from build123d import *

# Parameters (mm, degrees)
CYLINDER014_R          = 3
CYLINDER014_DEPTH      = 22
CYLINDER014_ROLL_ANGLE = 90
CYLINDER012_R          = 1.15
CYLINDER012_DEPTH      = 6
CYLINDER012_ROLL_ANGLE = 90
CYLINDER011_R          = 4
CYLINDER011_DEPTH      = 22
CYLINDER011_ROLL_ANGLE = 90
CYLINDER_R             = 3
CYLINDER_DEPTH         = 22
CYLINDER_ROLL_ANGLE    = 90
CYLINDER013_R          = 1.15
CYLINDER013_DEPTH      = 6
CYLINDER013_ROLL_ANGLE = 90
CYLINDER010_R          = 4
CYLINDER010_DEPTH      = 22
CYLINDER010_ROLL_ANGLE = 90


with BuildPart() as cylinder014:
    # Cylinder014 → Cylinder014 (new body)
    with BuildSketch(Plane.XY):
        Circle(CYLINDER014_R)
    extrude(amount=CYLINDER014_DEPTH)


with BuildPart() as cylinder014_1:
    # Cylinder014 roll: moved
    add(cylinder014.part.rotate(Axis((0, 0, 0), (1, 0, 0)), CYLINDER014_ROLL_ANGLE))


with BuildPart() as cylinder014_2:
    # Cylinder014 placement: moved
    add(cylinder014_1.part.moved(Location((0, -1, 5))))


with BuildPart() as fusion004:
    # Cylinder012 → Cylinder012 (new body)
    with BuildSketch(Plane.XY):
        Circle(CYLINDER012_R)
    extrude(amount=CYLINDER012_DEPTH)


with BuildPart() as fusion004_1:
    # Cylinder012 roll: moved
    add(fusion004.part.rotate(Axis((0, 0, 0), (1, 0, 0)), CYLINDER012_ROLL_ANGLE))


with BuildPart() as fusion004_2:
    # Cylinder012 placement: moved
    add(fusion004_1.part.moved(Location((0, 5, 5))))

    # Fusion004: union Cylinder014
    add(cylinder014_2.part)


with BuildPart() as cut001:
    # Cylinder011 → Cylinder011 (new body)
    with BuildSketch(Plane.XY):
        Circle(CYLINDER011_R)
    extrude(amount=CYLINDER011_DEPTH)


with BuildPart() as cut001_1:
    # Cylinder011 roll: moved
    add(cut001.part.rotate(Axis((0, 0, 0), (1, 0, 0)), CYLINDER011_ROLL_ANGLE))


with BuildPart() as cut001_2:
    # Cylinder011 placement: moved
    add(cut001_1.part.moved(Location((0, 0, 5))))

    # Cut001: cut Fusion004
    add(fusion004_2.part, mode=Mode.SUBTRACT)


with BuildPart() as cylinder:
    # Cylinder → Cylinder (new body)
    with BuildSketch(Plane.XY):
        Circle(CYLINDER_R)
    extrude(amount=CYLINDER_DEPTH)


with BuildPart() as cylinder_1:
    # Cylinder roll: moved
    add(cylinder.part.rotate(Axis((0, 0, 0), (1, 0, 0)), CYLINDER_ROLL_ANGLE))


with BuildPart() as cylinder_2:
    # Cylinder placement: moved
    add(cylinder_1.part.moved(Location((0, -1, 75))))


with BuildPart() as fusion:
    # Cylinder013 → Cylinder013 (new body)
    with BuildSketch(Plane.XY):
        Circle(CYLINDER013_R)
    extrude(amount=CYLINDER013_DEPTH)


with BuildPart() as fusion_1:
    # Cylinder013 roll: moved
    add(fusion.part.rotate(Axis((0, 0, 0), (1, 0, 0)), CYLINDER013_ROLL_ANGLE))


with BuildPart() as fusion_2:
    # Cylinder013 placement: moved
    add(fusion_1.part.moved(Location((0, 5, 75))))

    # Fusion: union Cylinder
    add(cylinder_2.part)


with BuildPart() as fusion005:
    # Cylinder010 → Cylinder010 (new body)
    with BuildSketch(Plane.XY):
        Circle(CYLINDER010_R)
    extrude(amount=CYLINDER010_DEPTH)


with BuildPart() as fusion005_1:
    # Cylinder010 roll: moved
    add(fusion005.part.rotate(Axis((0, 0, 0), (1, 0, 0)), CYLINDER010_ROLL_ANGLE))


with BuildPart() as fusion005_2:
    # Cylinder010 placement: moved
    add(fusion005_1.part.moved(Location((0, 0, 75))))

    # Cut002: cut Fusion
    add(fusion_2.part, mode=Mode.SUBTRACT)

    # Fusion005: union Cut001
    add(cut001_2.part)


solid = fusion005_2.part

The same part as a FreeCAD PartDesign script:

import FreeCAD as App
import Part
import Sketcher
from FreeCAD import Vector
Q = App.Units.Quantity

doc = App.newDocument("Part")
body = doc.addObject("PartDesign::Body", "Body")

# Sketch on XY plane
sketch1 = body.newObject("Sketcher::SketchObject", "Sketch")
sketch1.AttachmentSupport = (doc.getObject("XY_Plane"), [""])
sketch1.MapMode = "FlatFace"
sketch1.addGeometry(Part.Circle(Vector(0, 0, 0), Vector(0, 0, 1), 3), False)
sketch1.addConstraint(Sketcher.Constraint("Coincident", 0, 3, -1, 1))
sketch1.addConstraint(Sketcher.Constraint("Diameter", 0, Q("6 mm")))
pad1 = body.newObject("PartDesign::Pad", "Pad")
pad1.Profile = sketch1
pad1.Length = 22
body2 = doc.addObject("PartDesign::Body", "Body001")
doc.recompute()

body.Placement = App.Placement(Vector(0, 0, 0), App.Rotation(Vector(1, 0, 0), 90))
boolean = body2.newObject("PartDesign::Boolean", "Boolean")
boolean.Type = "Fuse"
boolean.addObjects([body])
body3 = doc.addObject("PartDesign::Body", "Body002")
doc.recompute()

body2.Placement = App.Placement(Vector(0, -1, 5), App.Rotation(Vector(0, 0, 1), 0))
boolean2 = body3.newObject("PartDesign::Boolean", "Boolean001")
boolean2.Type = "Fuse"
boolean2.addObjects([body2])
body4 = doc.addObject("PartDesign::Body", "Body003")

# Sketch on XY plane
sketch2 = body4.newObject("Sketcher::SketchObject", "Sketch001")
sketch2.AttachmentSupport = (doc.getObject("XY_Plane003"), [""])
sketch2.MapMode = "FlatFace"
sketch2.addGeometry(Part.Circle(Vector(0, 0, 0), Vector(0, 0, 1), 1.15), False)
sketch2.addConstraint(Sketcher.Constraint("Coincident", 0, 3, -1, 1))
sketch2.addConstraint(Sketcher.Constraint("Diameter", 0, Q("2.3 mm")))
pad2 = body4.newObject("PartDesign::Pad", "Pad001")
pad2.Profile = sketch2
pad2.Length = 6
body5 = doc.addObject("PartDesign::Body", "Body004")
doc.recompute()

body4.Placement = App.Placement(Vector(0, 0, 0), App.Rotation(Vector(1, 0, 0), 90))
boolean3 = body5.newObject("PartDesign::Boolean", "Boolean002")
boolean3.Type = "Fuse"
boolean3.addObjects([body4])
body6 = doc.addObject("PartDesign::Body", "Body005")
doc.recompute()

body5.Placement = App.Placement(Vector(0, 5, 5), App.Rotation(Vector(0, 0, 1), 0))
boolean4 = body6.newObject("PartDesign::Boolean", "Boolean003")
boolean4.Type = "Fuse"
boolean4.addObjects([body5])
doc.recompute()

boolean5 = body6.newObject("PartDesign::Boolean", "Boolean004")
boolean5.Type = "Fuse"
boolean5.addObjects([body3])
body7 = doc.addObject("PartDesign::Body", "Body006")

# Sketch on XY plane
sketch3 = body7.newObject("Sketcher::SketchObject", "Sketch002")
sketch3.AttachmentSupport = (doc.getObject("XY_Plane006"), [""])
sketch3.MapMode = "FlatFace"
sketch3.addGeometry(Part.Circle(Vector(0, 0, 0), Vector(0, 0, 1), 4), False)
sketch3.addConstraint(Sketcher.Constraint("Coincident", 0, 3, -1, 1))
sketch3.addConstraint(Sketcher.Constraint("Diameter", 0, Q("8 mm")))
pad3 = body7.newObject("PartDesign::Pad", "Pad002")
pad3.Profile = sketch3
pad3.Length = 22
body8 = doc.addObject("PartDesign::Body", "Body007")
doc.recompute()

body7.Placement = App.Placement(Vector(0, 0, 0), App.Rotation(Vector(1, 0, 0), 90))
boolean6 = body8.newObject("PartDesign::Boolean", "Boolean005")
boolean6.Type = "Fuse"
boolean6.addObjects([body7])
body9 = doc.addObject("PartDesign::Body", "Body008")
doc.recompute()

body8.Placement = App.Placement(Vector(0, 0, 5), App.Rotation(Vector(0, 0, 1), 0))
boolean7 = body9.newObject("PartDesign::Boolean", "Boolean006")
boolean7.Type = "Fuse"
boolean7.addObjects([body8])
doc.recompute()

boolean8 = body9.newObject("PartDesign::Boolean", "Boolean007")
boolean8.Type = "Cut"
boolean8.addObjects([body6])
body10 = doc.addObject("PartDesign::Body", "Body009")

# Sketch on XY plane
sketch4 = body10.newObject("Sketcher::SketchObject", "Sketch003")
sketch4.AttachmentSupport = (doc.getObject("XY_Plane009"), [""])
sketch4.MapMode = "FlatFace"
sketch4.addGeometry(Part.Circle(Vector(0, 0, 0), Vector(0, 0, 1), 3), False)
sketch4.addConstraint(Sketcher.Constraint("Coincident", 0, 3, -1, 1))
sketch4.addConstraint(Sketcher.Constraint("Diameter", 0, Q("6 mm")))
pad4 = body10.newObject("PartDesign::Pad", "Pad003")
pad4.Profile = sketch4
pad4.Length = 22
body11 = doc.addObject("PartDesign::Body", "Body010")
doc.recompute()

body10.Placement = App.Placement(Vector(0, 0, 0), App.Rotation(Vector(1, 0, 0), 90))
boolean9 = body11.newObject("PartDesign::Boolean", "Boolean008")
boolean9.Type = "Fuse"
boolean9.addObjects([body10])
body12 = doc.addObject("PartDesign::Body", "Body011")
doc.recompute()

body11.Placement = App.Placement(Vector(0, -1, 75), App.Rotation(Vector(0, 0, 1), 0))
boolean10 = body12.newObject("PartDesign::Boolean", "Boolean009")
boolean10.Type = "Fuse"
boolean10.addObjects([body11])
body13 = doc.addObject("PartDesign::Body", "Body012")

# Sketch on XY plane
sketch5 = body13.newObject("Sketcher::SketchObject", "Sketch004")
sketch5.AttachmentSupport = (doc.getObject("XY_Plane012"), [""])
sketch5.MapMode = "FlatFace"
sketch5.addGeometry(Part.Circle(Vector(0, 0, 0), Vector(0, 0, 1), 1.15), False)
sketch5.addConstraint(Sketcher.Constraint("Coincident", 0, 3, -1, 1))
sketch5.addConstraint(Sketcher.Constraint("Diameter", 0, Q("2.3 mm")))
pad5 = body13.newObject("PartDesign::Pad", "Pad004")
pad5.Profile = sketch5
pad5.Length = 6
body14 = doc.addObject("PartDesign::Body", "Body013")
doc.recompute()

body13.Placement = App.Placement(Vector(0, 0, 0), App.Rotation(Vector(1, 0, 0), 90))
boolean11 = body14.newObject("PartDesign::Boolean", "Boolean010")
boolean11.Type = "Fuse"
boolean11.addObjects([body13])
body15 = doc.addObject("PartDesign::Body", "Body014")
doc.recompute()

body14.Placement = App.Placement(Vector(0, 5, 75), App.Rotation(Vector(0, 0, 1), 0))
boolean12 = body15.newObject("PartDesign::Boolean", "Boolean011")
boolean12.Type = "Fuse"
boolean12.addObjects([body14])
doc.recompute()

boolean13 = body15.newObject("PartDesign::Boolean", "Boolean012")
boolean13.Type = "Fuse"
boolean13.addObjects([body12])
body16 = doc.addObject("PartDesign::Body", "Body015")

# Sketch on XY plane
sketch6 = body16.newObject("Sketcher::SketchObject", "Sketch005")
sketch6.AttachmentSupport = (doc.getObject("XY_Plane015"), [""])
sketch6.MapMode = "FlatFace"
sketch6.addGeometry(Part.Circle(Vector(0, 0, 0), Vector(0, 0, 1), 4), False)
sketch6.addConstraint(Sketcher.Constraint("Coincident", 0, 3, -1, 1))
sketch6.addConstraint(Sketcher.Constraint("Diameter", 0, Q("8 mm")))
pad6 = body16.newObject("PartDesign::Pad", "Pad005")
pad6.Profile = sketch6
pad6.Length = 22
body17 = doc.addObject("PartDesign::Body", "Body016")
doc.recompute()

body16.Placement = App.Placement(Vector(0, 0, 0), App.Rotation(Vector(1, 0, 0), 90))
boolean14 = body17.newObject("PartDesign::Boolean", "Boolean013")
boolean14.Type = "Fuse"
boolean14.addObjects([body16])
body18 = doc.addObject("PartDesign::Body", "Body017")
body18.AllowCompound = True
doc.recompute()

body17.Placement = App.Placement(Vector(0, 0, 75), App.Rotation(Vector(0, 0, 1), 0))
boolean15 = body18.newObject("PartDesign::Boolean", "Boolean014")
boolean15.Type = "Fuse"
boolean15.addObjects([body17])
doc.recompute()

boolean16 = body18.newObject("PartDesign::Boolean", "Boolean015")
boolean16.Type = "Cut"
boolean16.addObjects([body15])
doc.recompute()

boolean17 = body18.newObject("PartDesign::Boolean", "Boolean016")
boolean17.Type = "Fuse"
boolean17.addObjects([body9])

doc.recompute()
